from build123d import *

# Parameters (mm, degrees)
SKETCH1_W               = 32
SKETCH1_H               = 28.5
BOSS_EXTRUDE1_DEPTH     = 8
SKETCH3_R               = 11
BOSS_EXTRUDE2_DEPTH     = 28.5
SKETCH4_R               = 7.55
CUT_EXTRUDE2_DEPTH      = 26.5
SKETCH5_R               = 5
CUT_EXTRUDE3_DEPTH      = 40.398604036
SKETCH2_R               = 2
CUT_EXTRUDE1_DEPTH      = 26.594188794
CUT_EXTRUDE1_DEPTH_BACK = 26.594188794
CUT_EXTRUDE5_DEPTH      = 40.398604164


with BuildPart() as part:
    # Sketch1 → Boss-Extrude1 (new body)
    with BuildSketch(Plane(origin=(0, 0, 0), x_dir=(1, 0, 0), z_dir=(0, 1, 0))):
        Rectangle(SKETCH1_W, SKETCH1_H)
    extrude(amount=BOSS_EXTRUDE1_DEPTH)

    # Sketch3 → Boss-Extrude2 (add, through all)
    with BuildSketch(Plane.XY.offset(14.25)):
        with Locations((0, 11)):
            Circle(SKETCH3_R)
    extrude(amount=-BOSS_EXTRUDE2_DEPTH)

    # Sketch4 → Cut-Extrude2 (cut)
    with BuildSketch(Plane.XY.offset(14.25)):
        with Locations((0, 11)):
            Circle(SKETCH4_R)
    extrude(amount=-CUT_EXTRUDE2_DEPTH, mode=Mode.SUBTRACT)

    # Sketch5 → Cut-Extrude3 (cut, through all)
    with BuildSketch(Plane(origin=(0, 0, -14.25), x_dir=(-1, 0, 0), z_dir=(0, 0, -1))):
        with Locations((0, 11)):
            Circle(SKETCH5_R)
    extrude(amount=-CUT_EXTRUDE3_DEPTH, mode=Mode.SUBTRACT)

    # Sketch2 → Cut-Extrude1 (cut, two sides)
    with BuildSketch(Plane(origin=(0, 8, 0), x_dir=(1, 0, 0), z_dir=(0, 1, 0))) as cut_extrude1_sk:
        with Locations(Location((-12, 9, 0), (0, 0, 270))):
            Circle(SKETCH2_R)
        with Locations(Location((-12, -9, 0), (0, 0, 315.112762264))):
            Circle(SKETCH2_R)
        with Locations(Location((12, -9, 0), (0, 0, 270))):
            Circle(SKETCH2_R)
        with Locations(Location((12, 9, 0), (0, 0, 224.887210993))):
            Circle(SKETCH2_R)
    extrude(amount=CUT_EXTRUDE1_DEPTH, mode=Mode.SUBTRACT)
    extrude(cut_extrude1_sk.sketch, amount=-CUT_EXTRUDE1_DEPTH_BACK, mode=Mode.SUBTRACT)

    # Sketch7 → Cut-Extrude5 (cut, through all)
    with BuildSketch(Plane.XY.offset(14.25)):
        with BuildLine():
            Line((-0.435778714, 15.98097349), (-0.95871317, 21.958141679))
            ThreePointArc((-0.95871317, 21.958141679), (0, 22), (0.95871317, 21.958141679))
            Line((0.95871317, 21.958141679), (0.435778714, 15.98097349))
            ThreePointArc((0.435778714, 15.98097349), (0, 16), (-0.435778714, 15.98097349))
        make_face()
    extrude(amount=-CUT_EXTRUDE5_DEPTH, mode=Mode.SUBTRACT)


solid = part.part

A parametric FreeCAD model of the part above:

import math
import FreeCAD as App
import Part
import Sketcher
from FreeCAD import Vector
Q = App.Units.Quantity


def add_polygon(sketch, points):
    """Adds a closed chain of lines whose ends are joined by coincident constraints."""
    first, n = sketch.GeometryCount, len(points)
    for a, b in zip(points, points[1:] + points[:1]):
        sketch.addGeometry(Part.LineSegment(App.Vector(*a, 0), App.Vector(*b, 0)), False)
    for i in range(n):
        sketch.addConstraint(Sketcher.Constraint("Coincident", first + i, 2, first + (i + 1) % n, 1))

doc = App.newDocument("Part")
body = doc.addObject("PartDesign::Body", "Body")

# Sketch on XZ plane
sketch1 = body.newObject("Sketcher::SketchObject", "Sketch")
sketch1.AttachmentSupport = (doc.getObject("XZ_Plane"), [""])
sketch1.MapMode = "FlatFace"
add_polygon(sketch1, [(-16, -14.25), (-16, 14.25), (16, 14.25), (16, -14.25)])  # lines 0-3
sketch1.addConstraint(Sketcher.Constraint("Vertical", 0))
sketch1.addConstraint(Sketcher.Constraint("Horizontal", 1))
sketch1.addConstraint(Sketcher.Constraint("Vertical", 2))
sketch1.addConstraint(Sketcher.Constraint("Horizontal", 3))
sketch1.addConstraint(Sketcher.Constraint("Symmetric", 0, 2, 2, 2, -1, 1))
sketch1.addConstraint(Sketcher.Constraint("DistanceX", 1, 1, 1, 2, Q("32 mm")))
sketch1.addConstraint(Sketcher.Constraint("DistanceY", 0, 1, 0, 2, Q("28.5 mm")))
pad1 = body.newObject("PartDesign::Pad", "Pad")
pad1.Profile = sketch1
pad1.Length = 8
pad1.Reversed = True

# Sketch on XY plane
sketch2 = body.newObject("Sketcher::SketchObject", "Sketch001")
sketch2.AttachmentSupport = (doc.getObject("XY_Plane"), [""])
sketch2.MapMode = "FlatFace"
sketch2.AttachmentOffset = App.Placement(Vector(0, 0, 14.25), App.Rotation())
sketch2.addGeometry(Part.Circle(Vector(0, 11, 0), Vector(0, 0, 1), 11), False)
sketch2.addConstraint(Sketcher.Constraint("PointOnObject", 0, 3, -2))
sketch2.addConstraint(Sketcher.Constraint("Diameter", 0, Q("22 mm")))
sketch2.addConstraint(Sketcher.Constraint("DistanceY", -1, 1, 0, 3, Q("11 mm")))
pad2 = body.newObject("PartDesign::Pad", "Pad001")
pad2.Profile = sketch2
pad2.Length = 28.5
pad2.Reversed = True

# Sketch on XY plane
sketch3 = body.newObject("Sketcher::SketchObject", "Sketch002")
sketch3.AttachmentSupport = (doc.getObject("XY_Plane"), [""])
sketch3.MapMode = "FlatFace"
sketch3.AttachmentOffset = App.Placement(Vector(0, 0, 14.25), App.Rotation())
sketch3.addGeometry(Part.Circle(Vector(0, 11, 0), Vector(0, 0, 1), 7.55), False)
sketch3.addConstraint(Sketcher.Constraint("PointOnObject", 0, 3, -2))
sketch3.addConstraint(Sketcher.Constraint("Diameter", 0, Q("15.1 mm")))
sketch3.addConstraint(Sketcher.Constraint("DistanceY", -1, 1, 0, 3, Q("11 mm")))
pocket1 = body.newObject("PartDesign::Pocket", "Pocket")
pocket1.Profile = sketch3
pocket1.Length = 26.5

# Sketch on XY plane
sketch4 = body.newObject("Sketcher::SketchObject", "Sketch003")
sketch4.AttachmentSupport = (doc.getObject("XY_Plane"), [""])
sketch4.MapMode = "FlatFace"
sketch4.AttachmentOffset = App.Placement(Vector(0, 0, -14.25), App.Rotation())
sketch4.addGeometry(Part.Circle(Vector(0, 11, 0), Vector(0, 0, 1), 5), False)
sketch4.addConstraint(Sketcher.Constraint("PointOnObject", 0, 3, -2))
sketch4.addConstraint(Sketcher.Constraint("Diameter", 0, Q("10 mm")))
sketch4.addConstraint(Sketcher.Constraint("DistanceY", -1, 1, 0, 3, Q("11 mm")))
pocket2 = body.newObject("PartDesign::Pocket", "Pocket001")
pocket2.Profile = sketch4
pocket2.Type = "ThroughAll"
pocket2.Reversed = True

# Sketch on XZ plane
sketch5 = body.newObject("Sketcher::SketchObject", "Sketch004")
sketch5.AttachmentSupport = (doc.getObject("XZ_Plane"), [""])
sketch5.MapMode = "FlatFace"
sketch5.AttachmentOffset = App.Placement(Vector(0, 0, -8), App.Rotation())
sketch5.addGeometry(Part.Circle(Vector(-12, -9, 0), Vector(0, 0, 1), 2), False)
sketch5.addGeometry(Part.Circle(Vector(-12, 9, 0), Vector(0, 0, 1), 2), False)
sketch5.addGeometry(Part.Circle(Vector(12, 9, 0), Vector(0, 0, 1), 2), False)
sketch5.addGeometry(Part.Circle(Vector(12, -9, 0), Vector(0, 0, 1), 2), False)
sketch5.addConstraint(Sketcher.Constraint("Equal", 0, 1))
sketch5.addConstraint(Sketcher.Constraint("Equal", 1, 2))
sketch5.addConstraint(Sketcher.Constraint("Equal", 2, 3))
sketch5.addConstraint(Sketcher.Constraint("Symmetric", 0, 3, 2, 3, -1, 1))
sketch5.addConstraint(Sketcher.Constraint("Symmetric", 1, 3, 3, 3, -1, 1))
sketch5.addConstraint(Sketcher.Constraint("Symmetric", 1, 3, 2, 3, -2))
sketch5.addConstraint(Sketcher.Constraint("Diameter", 0, Q("4 mm")))
sketch5.addConstraint(Sketcher.Constraint("DistanceX", 0, 3, -1, 1, Q("12 mm")))
sketch5.addConstraint(Sketcher.Constraint("DistanceY", 0, 3, -1, 1, Q("9 mm")))
pocket3 = body.newObject("PartDesign::Pocket", "Pocket002")
pocket3.Profile = sketch5
pocket3.Type = "ThroughAll"
pocket3.Midplane = True

# Sketch on XY plane
sketch6 = body.newObject("Sketcher::SketchObject", "Sketch005")
sketch6.AttachmentSupport = (doc.getObject("XY_Plane"), [""])
sketch6.MapMode = "FlatFace"
sketch6.AttachmentOffset = App.Placement(Vector(0, 0, 14.25), App.Rotation())
sketch6.addGeometry(Part.LineSegment(Vector(-0.958713, 21.958142, 0), Vector(-0.435779, 15.980973, 0)), False)
sketch6.addGeometry(Part.ArcOfCircle(Part.Circle(Vector(0, 11, 0), Vector(0, 0, 1), 5), math.radians(85), math.radians(95)), False)
sketch6.addGeometry(Part.LineSegment(Vector(0.435779, 15.980973, 0), Vector(0.958713, 21.958142, 0)), False)
sketch6.addGeometry(Part.ArcOfCircle(Part.Circle(Vector(0, 11, 0), Vector(0, 0, 1), 11), math.radians(85), math.radians(95)), False)
sketch6.addConstraint(Sketcher.Constraint("Coincident", 0, 2, 1, 2))
sketch6.addConstraint(Sketcher.Constraint("Coincident", 1, 1, 2, 1))
sketch6.addConstraint(Sketcher.Constraint("Coincident", 2, 2, 3, 1))
sketch6.addConstraint(Sketcher.Constraint("Coincident", 3, 2, 0, 1))
sketch6.addConstraint(Sketcher.Constraint("Coincident", 3, 3, 1, 3))
sketch6.addConstraint(Sketcher.Constraint("Symmetric", 0, 2, 1, 1, -2))
sketch6.addConstraint(Sketcher.Constraint("Horizontal", 2, 2, 3, 2))
sketch6.addConstraint(Sketcher.Constraint("Radius", 1, Q("5 mm")))
sketch6.addConstraint(Sketcher.Constraint("Radius", 3, Q("11 mm")))
sketch6.addConstraint(Sketcher.Constraint("Angle", 0, Q("-85 deg")))
sketch6.addConstraint(Sketcher.Constraint("DistanceY", -1, 1, 1, 3, Q("11 mm")))
sketch6.addConstraint(Sketcher.Constraint("DistanceX", 0, 2, -1, 1, Q("0.435779 mm")))
pocket4 = body.newObject("PartDesign::Pocket", "Pocket003")
pocket4.Profile = sketch6
pocket4.Type = "ThroughAll"

doc.recompute()
